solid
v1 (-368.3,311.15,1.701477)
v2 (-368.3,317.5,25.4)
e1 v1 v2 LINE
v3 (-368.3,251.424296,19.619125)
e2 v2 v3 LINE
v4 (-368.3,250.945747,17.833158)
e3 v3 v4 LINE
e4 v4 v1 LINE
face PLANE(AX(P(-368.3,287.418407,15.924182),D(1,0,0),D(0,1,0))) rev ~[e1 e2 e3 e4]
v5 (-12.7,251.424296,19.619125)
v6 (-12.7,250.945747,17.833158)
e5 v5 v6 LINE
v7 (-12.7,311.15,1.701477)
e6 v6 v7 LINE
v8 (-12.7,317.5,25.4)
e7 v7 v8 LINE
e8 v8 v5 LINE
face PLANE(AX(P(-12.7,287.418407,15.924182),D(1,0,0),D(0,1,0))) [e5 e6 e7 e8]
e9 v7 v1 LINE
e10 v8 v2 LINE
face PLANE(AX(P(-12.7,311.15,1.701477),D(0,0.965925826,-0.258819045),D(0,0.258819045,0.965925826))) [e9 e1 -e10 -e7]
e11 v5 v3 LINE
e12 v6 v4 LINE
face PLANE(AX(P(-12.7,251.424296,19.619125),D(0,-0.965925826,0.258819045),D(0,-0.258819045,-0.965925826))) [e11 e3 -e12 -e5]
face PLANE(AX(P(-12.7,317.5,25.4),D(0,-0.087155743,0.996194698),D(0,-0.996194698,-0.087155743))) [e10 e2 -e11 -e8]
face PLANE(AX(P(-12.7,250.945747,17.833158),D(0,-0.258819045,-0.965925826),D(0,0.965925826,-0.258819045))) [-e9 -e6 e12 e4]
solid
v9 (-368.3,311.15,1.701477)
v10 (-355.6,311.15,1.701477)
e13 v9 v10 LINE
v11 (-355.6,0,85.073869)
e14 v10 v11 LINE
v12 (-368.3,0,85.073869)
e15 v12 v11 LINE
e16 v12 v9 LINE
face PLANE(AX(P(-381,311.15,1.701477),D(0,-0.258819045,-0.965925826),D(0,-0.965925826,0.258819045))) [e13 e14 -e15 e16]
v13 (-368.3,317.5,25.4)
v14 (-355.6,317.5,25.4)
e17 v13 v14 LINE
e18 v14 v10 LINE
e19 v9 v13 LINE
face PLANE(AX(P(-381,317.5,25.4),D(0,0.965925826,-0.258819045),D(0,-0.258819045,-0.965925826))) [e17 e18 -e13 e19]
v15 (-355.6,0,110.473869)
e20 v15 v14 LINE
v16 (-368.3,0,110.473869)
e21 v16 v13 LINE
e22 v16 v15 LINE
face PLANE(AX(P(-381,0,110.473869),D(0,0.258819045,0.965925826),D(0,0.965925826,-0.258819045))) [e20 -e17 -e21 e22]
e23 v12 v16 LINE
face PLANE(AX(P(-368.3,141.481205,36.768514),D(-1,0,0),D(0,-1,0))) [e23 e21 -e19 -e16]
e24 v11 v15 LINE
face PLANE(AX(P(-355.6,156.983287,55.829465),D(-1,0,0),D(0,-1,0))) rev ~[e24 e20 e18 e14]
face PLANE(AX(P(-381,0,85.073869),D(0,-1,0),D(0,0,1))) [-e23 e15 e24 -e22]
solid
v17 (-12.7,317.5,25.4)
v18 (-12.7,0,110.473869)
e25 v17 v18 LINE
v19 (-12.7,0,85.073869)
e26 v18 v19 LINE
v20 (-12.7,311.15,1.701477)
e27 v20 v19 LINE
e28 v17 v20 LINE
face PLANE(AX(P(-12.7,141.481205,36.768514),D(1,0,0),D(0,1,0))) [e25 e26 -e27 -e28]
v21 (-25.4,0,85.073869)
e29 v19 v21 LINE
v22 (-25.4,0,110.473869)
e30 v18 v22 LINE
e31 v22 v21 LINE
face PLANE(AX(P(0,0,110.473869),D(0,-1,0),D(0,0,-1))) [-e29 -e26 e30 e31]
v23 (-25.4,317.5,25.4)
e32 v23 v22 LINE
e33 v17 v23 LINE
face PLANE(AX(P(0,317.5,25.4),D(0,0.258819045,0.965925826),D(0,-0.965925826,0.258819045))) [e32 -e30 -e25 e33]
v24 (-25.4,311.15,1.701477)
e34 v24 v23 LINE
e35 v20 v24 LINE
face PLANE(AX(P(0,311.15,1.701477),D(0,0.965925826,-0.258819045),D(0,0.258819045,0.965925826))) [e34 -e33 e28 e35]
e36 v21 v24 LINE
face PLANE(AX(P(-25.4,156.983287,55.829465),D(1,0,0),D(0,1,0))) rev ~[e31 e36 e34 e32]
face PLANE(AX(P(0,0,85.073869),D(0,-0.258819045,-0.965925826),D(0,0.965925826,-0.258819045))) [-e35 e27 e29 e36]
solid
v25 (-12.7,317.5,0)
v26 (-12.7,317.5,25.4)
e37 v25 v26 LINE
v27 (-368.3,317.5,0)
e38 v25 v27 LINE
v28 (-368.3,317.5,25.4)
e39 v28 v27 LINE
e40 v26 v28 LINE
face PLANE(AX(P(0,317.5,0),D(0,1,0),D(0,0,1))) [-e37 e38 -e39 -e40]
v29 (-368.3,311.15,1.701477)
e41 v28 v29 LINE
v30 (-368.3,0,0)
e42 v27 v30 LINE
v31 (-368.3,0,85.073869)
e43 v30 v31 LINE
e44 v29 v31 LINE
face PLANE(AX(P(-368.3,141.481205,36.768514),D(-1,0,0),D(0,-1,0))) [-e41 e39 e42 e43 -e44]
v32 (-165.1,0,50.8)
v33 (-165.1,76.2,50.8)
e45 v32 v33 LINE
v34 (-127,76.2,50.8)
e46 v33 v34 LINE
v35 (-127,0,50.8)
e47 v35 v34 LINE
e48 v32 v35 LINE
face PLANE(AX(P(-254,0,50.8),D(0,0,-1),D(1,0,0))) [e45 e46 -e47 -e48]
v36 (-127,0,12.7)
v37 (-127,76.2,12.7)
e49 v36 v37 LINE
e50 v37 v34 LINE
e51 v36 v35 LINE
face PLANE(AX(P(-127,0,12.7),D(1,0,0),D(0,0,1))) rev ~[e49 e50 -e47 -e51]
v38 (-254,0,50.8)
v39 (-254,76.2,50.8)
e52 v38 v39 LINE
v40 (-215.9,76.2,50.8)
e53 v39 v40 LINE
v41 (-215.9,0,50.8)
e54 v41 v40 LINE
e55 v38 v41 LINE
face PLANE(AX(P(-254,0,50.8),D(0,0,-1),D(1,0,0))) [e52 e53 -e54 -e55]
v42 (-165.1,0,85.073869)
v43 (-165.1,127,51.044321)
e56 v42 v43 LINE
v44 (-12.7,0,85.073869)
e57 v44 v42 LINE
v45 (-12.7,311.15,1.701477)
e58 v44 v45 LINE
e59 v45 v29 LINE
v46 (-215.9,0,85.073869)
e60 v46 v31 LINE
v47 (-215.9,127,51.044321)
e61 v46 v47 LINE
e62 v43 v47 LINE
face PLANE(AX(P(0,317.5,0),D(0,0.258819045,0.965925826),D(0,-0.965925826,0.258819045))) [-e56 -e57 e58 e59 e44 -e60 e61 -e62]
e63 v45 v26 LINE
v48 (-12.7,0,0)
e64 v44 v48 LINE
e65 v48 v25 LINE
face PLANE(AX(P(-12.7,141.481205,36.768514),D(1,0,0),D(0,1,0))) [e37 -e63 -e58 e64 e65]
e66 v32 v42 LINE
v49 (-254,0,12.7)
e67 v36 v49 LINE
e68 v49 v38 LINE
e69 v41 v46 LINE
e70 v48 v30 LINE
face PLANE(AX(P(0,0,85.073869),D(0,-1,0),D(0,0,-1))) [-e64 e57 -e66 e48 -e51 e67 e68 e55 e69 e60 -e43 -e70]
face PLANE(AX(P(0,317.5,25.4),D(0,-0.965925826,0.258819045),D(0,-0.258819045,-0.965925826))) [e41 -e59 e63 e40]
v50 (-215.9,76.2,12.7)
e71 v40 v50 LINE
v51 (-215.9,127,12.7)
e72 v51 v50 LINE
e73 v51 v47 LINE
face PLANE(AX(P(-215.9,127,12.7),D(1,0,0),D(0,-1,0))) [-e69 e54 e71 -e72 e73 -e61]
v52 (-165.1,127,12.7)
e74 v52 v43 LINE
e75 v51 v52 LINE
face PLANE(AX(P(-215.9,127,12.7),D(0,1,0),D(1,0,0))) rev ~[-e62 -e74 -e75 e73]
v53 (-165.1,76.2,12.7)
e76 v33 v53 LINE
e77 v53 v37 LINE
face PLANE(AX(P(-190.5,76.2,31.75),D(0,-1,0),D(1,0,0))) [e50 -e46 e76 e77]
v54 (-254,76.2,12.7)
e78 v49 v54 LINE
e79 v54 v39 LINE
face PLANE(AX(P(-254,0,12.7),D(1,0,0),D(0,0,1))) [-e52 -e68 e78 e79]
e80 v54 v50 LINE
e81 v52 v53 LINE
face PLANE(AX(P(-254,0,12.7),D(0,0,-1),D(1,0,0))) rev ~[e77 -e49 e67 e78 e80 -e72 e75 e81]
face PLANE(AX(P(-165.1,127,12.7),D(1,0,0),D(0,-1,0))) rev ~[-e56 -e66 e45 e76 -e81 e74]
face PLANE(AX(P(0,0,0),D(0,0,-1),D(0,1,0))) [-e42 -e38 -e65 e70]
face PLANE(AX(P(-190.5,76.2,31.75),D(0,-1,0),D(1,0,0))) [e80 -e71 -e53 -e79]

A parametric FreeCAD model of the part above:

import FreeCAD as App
import Part
import Sketcher
Q = App.Units.Quantity


def add_polygon(sketch, points):
    """Adds a closed chain of lines whose ends are joined by coincident constraints."""
    first, n = sketch.GeometryCount, len(points)
    for a, b in zip(points, points[1:] + points[:1]):
        sketch.addGeometry(Part.LineSegment(App.Vector(*a, 0), App.Vector(*b, 0)), False)
    for i in range(n):
        sketch.addConstraint(Sketcher.Constraint("Coincident", first + i, 2, first + (i + 1) % n, 1))

doc = App.newDocument("Part")
body = doc.addObject("PartDesign::Body", "Body")

sketch1 = body.newObject("Sketcher::SketchObject", "Sketch")
sketch1.AttachmentSupport = (doc.getObject("YZ_Plane"), [""])
sketch1.MapMode = "FlatFace"
add_polygon(sketch1, [(0, 85), (0, 0), (318, 0)])
sketch1.addConstraint(Sketcher.Constraint("Vertical", 0))
sketch1.addConstraint(Sketcher.Constraint("Horizontal", 1))
sketch1.addConstraint(Sketcher.Constraint("Coincident", 0, 2, -1, 1))
sketch1.addConstraint(Sketcher.Constraint("DistanceX", 1, 1, 1, 2, Q("12.5 in")))
sketch1.addConstraint(Sketcher.Constraint("Angle", 2, Q("165 deg")))
pad1 = body.newObject("PartDesign::Pad", "Pad")
pad1.Profile = sketch1
pad1.Length = Q("15 in")
pad1.Reversed = True

sketch2 = body.newObject("Sketcher::SketchObject", "Sketch001")
sketch2.AttachmentSupport = (doc.getObject("XY_Plane"), [""])
sketch2.MapMode = "FlatFace"
sketch2.AttachmentOffset = App.Placement(App.Vector(0, 0, 0.5 * 25.4), App.Rotation())
add_polygon(sketch2, [(-216, 0), (-216, 127), (-165, 127), (-165, 0)])
sketch2.addConstraint(Sketcher.Constraint("Vertical", 0))
sketch2.addConstraint(Sketcher.Constraint("Horizontal", 1))
sketch2.addConstraint(Sketcher.Constraint("Vertical", 2))
sketch2.addConstraint(Sketcher.Constraint("Horizontal", 3))
sketch2.addConstraint(Sketcher.Constraint("PointOnObject", 2, 2, -1))
sketch2.addConstraint(Sketcher.Constraint("DistanceX", 1, 1, 1, 2, Q("2 in")))
sketch2.addConstraint(Sketcher.Constraint("DistanceY", 0, 1, 0, 2, Q("5 in")))
sketch2.addConstraint(Sketcher.Constraint("DistanceX", 0, 2, -1, 1, Q("8.5 in")))
pocket1 = body.newObject("PartDesign::Pocket", "Pocket")
pocket1.Profile = sketch2
pocket1.Length = 72.374869
pocket1.Reversed = True

sketch3 = body.newObject("Sketcher::SketchObject", "Sketch002")
sketch3.AttachmentSupport = (doc.getObject("XZ_Plane"), [""])
sketch3.MapMode = "FlatFace"
add_polygon(sketch3, [(-254, 51), (-254, 13), (-127, 13), (-127, 51)])
sketch3.addConstraint(Sketcher.Constraint("Vertical", 0))
sketch3.addConstraint(Sketcher.Constraint("Horizontal", 1))
sketch3.addConstraint(Sketcher.Constraint("Vertical", 2))
sketch3.addConstraint(Sketcher.Constraint("Horizontal", 3))
sketch3.addConstraint(Sketcher.Constraint("DistanceX", 1, 1, 1, 2, Q("5 in")))
sketch3.addConstraint(Sketcher.Constraint("DistanceY", 0, 2, 0, 1, Q("1.5 in")))
sketch3.addConstraint(Sketcher.Constraint("DistanceX", 0, 2, -1, 1, Q("10 in")))
sketch3.addConstraint(Sketcher.Constraint("DistanceY", -1, 1, 2, 2, Q("2 in")))
pocket2 = body.newObject("PartDesign::Pocket", "Pocket001")
pocket2.Profile = sketch3
pocket2.Length = Q("3 in")

sketch4 = body.newObject("Sketcher::SketchObject", "Sketch003")
sketch4.AttachmentSupport = (doc.getObject("YZ_Plane"), [""])
sketch4.MapMode = "FlatFace"
add_polygon(sketch4, [(311, 2), (318, 0), (318, 25)])
sketch4.addConstraint(Sketcher.Constraint("Vertical", 1))
sketch4.addConstraint(Sketcher.Constraint("PointOnObject", 0, 2, -1))
sketch4.addConstraint(Sketcher.Constraint("Perpendicular", 0, 2))
sketch4.addConstraint(Sketcher.Constraint("DistanceY", 1, 1, 1, 2, Q("1 in")))
sketch4.addConstraint(Sketcher.Constraint("Angle", 0, Q("-15 deg")))
sketch4.addConstraint(Sketcher.Constraint("DistanceX", -1, 1, 0, 2, Q("12.5 in")))
pad2 = body.newObject("PartDesign::Pad", "Pad001")
pad2.Profile = sketch4
pad2.Length = Q("15 in")
pad2.Reversed = True
body2 = doc.addObject("PartDesign::Body", "Body001")

sketch5 = body2.newObject("Sketcher::SketchObject", "Sketch004")
sketch5.AttachmentSupport = (doc.getObject("YZ_Plane001"), [""])
sketch5.MapMode = "FlatFace"
add_polygon(sketch5, [(311, 2), (318, 25), (0, 110), (0, 85)])
sketch5.addConstraint(Sketcher.Constraint("Vertical", 2))
sketch5.addConstraint(Sketcher.Constraint("PointOnObject", 1, 2, -2))
sketch5.addConstraint(Sketcher.Constraint("Perpendicular", 0, 1))
sketch5.addConstraint(Sketcher.Constraint("Parallel", 1, 3))
sketch5.addConstraint(Sketcher.Constraint("DistanceY", 2, 2, 2, 1, Q("1 in")))
sketch5.addConstraint(Sketcher.Constraint("DistanceY", -1, 1, 0, 2, Q("1 in")))
sketch5.addConstraint(Sketcher.Constraint("Angle", 0, Q("75 deg")))
sketch5.addConstraint(Sketcher.Constraint("DistanceX", -1, 1, 0, 2, Q("12.5 in")))
pad3 = body2.newObject("PartDesign::Pad", "Pad002")
pad3.Profile = sketch5
pad3.Length = Q("1 in")
pad3.Reversed = True
body3 = doc.addObject("PartDesign::Body", "Body002")

sketch6 = body3.newObject("Sketcher::SketchObject", "Sketch005")
sketch6.AttachmentSupport = (doc.getObject("YZ_Plane002"), [""])
sketch6.MapMode = "FlatFace"
sketch6.AttachmentOffset = App.Placement(App.Vector(0, 0, -15 * 25.4), App.Rotation())
add_polygon(sketch6, [(0, 110), (318, 25), (311, 2), (0, 85)])
sketch6.addConstraint(Sketcher.Constraint("Vertical", 3))
sketch6.addConstraint(Sketcher.Constraint("PointOnObject", 2, 2, -2))
sketch6.addConstraint(Sketcher.Constraint("Perpendicular", 0, 1))
sketch6.addConstraint(Sketcher.Constraint("Perpendicular", 1, 2))
sketch6.addConstraint(Sketcher.Constraint("DistanceY", 3, 1, 3, 2, Q("1 in")))
sketch6.addConstraint(Sketcher.Constraint("DistanceY", -1, 1, 0, 2, Q("1 in")))
sketch6.addConstraint(Sketcher.Constraint("Angle", 0, Q("-15 deg")))
sketch6.addConstraint(Sketcher.Constraint("DistanceX", -1, 1, 0, 2, Q("12.5 in")))
pad4 = body3.newObject("PartDesign::Pad", "Pad003")
pad4.Profile = sketch6
pad4.Length = Q("1 in")
body4 = doc.addObject("PartDesign::Body", "Body003")

sketch7 = body4.newObject("Sketcher::SketchObject", "Sketch006")
sketch7.AttachmentSupport = (doc.getObject("YZ_Plane003"), [""])
sketch7.MapMode = "FlatFace"
sketch7.AttachmentOffset = App.Placement(App.Vector(0, 0, -15 * 25.4), App.Rotation())
add_polygon(sketch7, [(318, 25), (318, 0), (0, 0), (0, 110)])
sketch7.addConstraint(Sketcher.Constraint("Vertical", 0))
sketch7.addConstraint(Sketcher.Constraint("Horizontal", 1))
sketch7.addConstraint(Sketcher.Constraint("Vertical", 2))
sketch7.addConstraint(Sketcher.Constraint("Coincident", 1, 2, -1, 1))
sketch7.addConstraint(Sketcher.Constraint("DistanceY", 0, 2, 0, 1, Q("1 in")))
sketch7.addConstraint(Sketcher.Constraint("DistanceX", 1, 2, 1, 1, Q("12.5 in")))
sketch7.addConstraint(Sketcher.Constraint("Angle", 3, Q("-15 deg")))
pad5 = body4.newObject("PartDesign::Pad", "Pad004")
pad5.Profile = sketch7
pad5.Length = Q("0.5 in")
doc.recompute()

body5 = doc.addObject("PartDesign::Body", "Body004")
body5.BaseFeature = body4
boolean = body.newObject("PartDesign::Boolean", "Boolean")
boolean.Type = "Cut"
boolean.addObjects([body5])
doc.recompute()

boolean2 = body3.newObject("PartDesign::Boolean", "Boolean001")
boolean2.Type = "Cut"
boolean2.addObjects([body4])
body6 = doc.addObject("PartDesign::Body", "Body005")

sketch8 = body6.newObject("Sketcher::SketchObject", "Sketch007")
sketch8.AttachmentSupport = (doc.getObject("YZ_Plane005"), [""])
sketch8.MapMode = "FlatFace"
add_polygon(sketch8, [(0, 0), (318, 0), (318, 25), (0, 110)])
sketch8.addConstraint(Sketcher.Constraint("Horizontal", 0))
sketch8.addConstraint(Sketcher.Constraint("Vertical", 1))
sketch8.addConstraint(Sketcher.Constraint("Vertical", 3))
sketch8.addConstraint(Sketcher.Constraint("Coincident", 3, 2, -1, 1))
sketch8.addConstraint(Sketcher.Constraint("DistanceY", 1, 1, 1, 2, Q("1 in")))
sketch8.addConstraint(Sketcher.Constraint("DistanceX", 0, 1, 0, 2, Q("12.5 in")))
sketch8.addConstraint(Sketcher.Constraint("Angle", 2, Q("165 deg")))
pad6 = body6.newObject("PartDesign::Pad", "Pad005")
pad6.Profile = sketch8
pad6.Length = Q("0.5 in")
pad6.Reversed = True
doc.recompute()

body7 = doc.addObject("PartDesign::Body", "Body006")
body7.BaseFeature = body6
boolean3 = body.newObject("PartDesign::Boolean", "Boolean002")
boolean3.Type = "Cut"
boolean3.addObjects([body7])
doc.recompute()

boolean4 = body2.newObject("PartDesign::Boolean", "Boolean003")
boolean4.Type = "Cut"
boolean4.addObjects([body6])
body8 = doc.addObject("PartDesign::Body", "Body007")

sketch9 = body8.newObject("Sketcher::SketchObject", "Sketch008")
sketch9.AttachmentSupport = (doc.getObject("YZ_Plane007"), [""])
sketch9.MapMode = "FlatFace"
sketch9.AttachmentOffset = App.Placement(App.Vector(0, 0, -0.5 * 25.4), App.Rotation())
add_polygon(sketch9, [(311.1, 1.7), (317.5, 25.4), (251.4, 19.6), (250.9, 17.8)])
sketch9.addConstraint(Sketcher.Constraint("Parallel", 0, 2))
sketch9.addConstraint(Sketcher.Constraint("Perpendicular", 2, 3))
sketch9.addConstraint(Sketcher.Constraint("DistanceY", -1, 1, 0, 2, Q("1 in")))
sketch9.addConstraint(Sketcher.Constraint("Angle", 0, Q("75 deg")))
sketch9.addConstraint(Sketcher.Constraint("Angle", 1, Q("-175 deg")))
sketch9.addConstraint(Sketcher.Constraint("DistanceX", -1, 1, 0, 2, Q("12.5 in")))
sketch9.addConstraint(Sketcher.Constraint("DistanceX", -1, 1, 3, 2, Q("12.25 in")))
sketch9.addConstraint(Sketcher.Constraint("Distance", 2, 1.848969))
pad7 = body8.newObject("PartDesign::Pad", "Pad006")
pad7.Profile = sketch9
pad7.Length = Q("14 in")
pad7.Reversed = True

doc.recompute()
